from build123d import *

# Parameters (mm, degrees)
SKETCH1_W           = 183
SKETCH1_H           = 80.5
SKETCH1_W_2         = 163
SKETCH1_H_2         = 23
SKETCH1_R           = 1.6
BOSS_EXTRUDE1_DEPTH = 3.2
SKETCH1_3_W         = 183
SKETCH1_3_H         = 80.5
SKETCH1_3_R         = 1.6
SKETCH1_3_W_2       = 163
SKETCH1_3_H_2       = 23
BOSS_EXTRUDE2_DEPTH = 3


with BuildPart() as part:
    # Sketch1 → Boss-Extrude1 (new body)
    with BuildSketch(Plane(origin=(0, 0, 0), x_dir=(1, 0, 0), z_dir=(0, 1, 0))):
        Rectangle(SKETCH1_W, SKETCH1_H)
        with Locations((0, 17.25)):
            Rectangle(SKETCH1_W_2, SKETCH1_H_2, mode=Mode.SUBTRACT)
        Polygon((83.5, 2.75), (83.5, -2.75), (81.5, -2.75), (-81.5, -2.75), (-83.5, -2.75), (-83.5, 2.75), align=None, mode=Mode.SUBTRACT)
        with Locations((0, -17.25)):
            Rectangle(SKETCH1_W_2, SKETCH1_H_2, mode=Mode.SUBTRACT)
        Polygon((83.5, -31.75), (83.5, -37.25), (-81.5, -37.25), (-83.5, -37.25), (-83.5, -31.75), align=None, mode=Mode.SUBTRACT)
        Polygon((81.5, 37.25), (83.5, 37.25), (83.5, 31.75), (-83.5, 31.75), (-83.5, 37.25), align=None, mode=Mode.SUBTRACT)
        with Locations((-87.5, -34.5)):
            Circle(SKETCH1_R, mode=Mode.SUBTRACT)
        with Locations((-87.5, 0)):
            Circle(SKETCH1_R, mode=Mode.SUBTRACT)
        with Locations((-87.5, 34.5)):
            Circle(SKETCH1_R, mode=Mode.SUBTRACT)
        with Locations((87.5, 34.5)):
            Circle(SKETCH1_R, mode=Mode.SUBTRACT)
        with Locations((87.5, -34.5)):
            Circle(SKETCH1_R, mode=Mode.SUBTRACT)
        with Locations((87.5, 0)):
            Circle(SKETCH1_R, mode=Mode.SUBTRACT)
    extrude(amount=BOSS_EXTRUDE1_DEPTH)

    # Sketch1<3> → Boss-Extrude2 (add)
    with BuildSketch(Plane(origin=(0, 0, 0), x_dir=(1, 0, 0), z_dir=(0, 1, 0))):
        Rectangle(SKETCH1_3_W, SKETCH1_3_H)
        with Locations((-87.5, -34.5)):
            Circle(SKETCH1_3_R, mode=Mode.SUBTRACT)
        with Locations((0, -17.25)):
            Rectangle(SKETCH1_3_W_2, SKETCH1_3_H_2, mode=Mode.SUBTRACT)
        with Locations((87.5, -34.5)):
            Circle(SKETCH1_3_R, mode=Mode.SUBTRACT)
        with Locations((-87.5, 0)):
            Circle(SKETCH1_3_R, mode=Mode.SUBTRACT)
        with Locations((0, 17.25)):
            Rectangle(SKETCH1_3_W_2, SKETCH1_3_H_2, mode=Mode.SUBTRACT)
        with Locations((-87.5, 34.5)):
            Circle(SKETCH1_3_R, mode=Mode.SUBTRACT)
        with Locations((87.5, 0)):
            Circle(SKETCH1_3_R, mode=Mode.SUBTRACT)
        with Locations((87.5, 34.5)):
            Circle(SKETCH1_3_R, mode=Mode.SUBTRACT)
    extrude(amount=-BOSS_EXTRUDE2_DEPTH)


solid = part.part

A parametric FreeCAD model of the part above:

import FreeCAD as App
import Part
import Sketcher
Q = App.Units.Quantity


def add_polygon(sketch, points):
    """Adds a closed chain of lines whose ends are joined by coincident constraints."""
    first, n = sketch.GeometryCount, len(points)
    for a, b in zip(points, points[1:] + points[:1]):
        sketch.addGeometry(Part.LineSegment(App.Vector(*a, 0), App.Vector(*b, 0)), False)
    for i in range(n):
        sketch.addConstraint(Sketcher.Constraint("Coincident", first + i, 2, first + (i + 1) % n, 1))

doc = App.newDocument("Part")
params = doc.addObject("Spreadsheet::Sheet", "Params")
for row, (alias, value) in enumerate([
    ("sketch1_diameter", "3.2 mm"),
    ("sketch1_width", "183 mm"),
    ("sketch1_width2", "167 mm"),
    ("sketch1_width3", "163 mm"),
    ("sketch1_height", "23 mm"),
    ("pad1_length", "3.2 mm"),
    ("sketch2_diameter", "3.2 mm"),
    ("sketch2_width", "183 mm"),
    ("sketch2_width2", "163 mm"),
    ("sketch2_height", "23 mm"),
    ("sketch2_height2", "80.5 mm"),
    ("pad2_length", "3 mm"),
], start=1):
    params.set(f"A{row}", alias)
    params.set(f"B{row}", "=" + value)
    params.setAlias(f"B{row}", alias)

body = doc.addObject("PartDesign::Body", "Body")

sketch1 = body.newObject("Sketcher::SketchObject", "Sketch")
sketch1.AttachmentSupport = (doc.getObject("XZ_Plane"), [""])
sketch1.MapMode = "FlatFace"
add_polygon(sketch1, [(-91.5, -40.2), (-91.5, 40.2), (91.5, 40.2), (91.5, -40.2)])
sketch1.addGeometry(Part.Circle(App.Vector(-87.5, 34.5, 0), App.Vector(0, 0, 1), 1.6), False)
add_polygon(sketch1, [(-83.5, 31.8), (83.5, 31.8), (83.5, 37.2), (-83.5, 37.2)])
sketch1.addGeometry(Part.Circle(App.Vector(87.5, 34.5, 0), App.Vector(0, 0, 1), 1.6), False)
add_polygon(sketch1, [(81.5, 28.8), (-81.5, 28.8), (-81.5, 5.8), (81.5, 5.8)])
sketch1.addGeometry(Part.Circle(App.Vector(-87.5, 0, 0), App.Vector(0, 0, 1), 1.6), False)
sketch1.addGeometry(Part.Circle(App.Vector(-87.5, -34.5, 0), App.Vector(0, 0, 1), 1.6), False)
add_polygon(sketch1, [(-83.5, -2.8), (83.5, -2.8), (83.5, 2.8), (-83.5, 2.8)])
add_polygon(sketch1, [(81.5, -5.8), (-81.5, -5.8), (-81.5, -28.8), (81.5, -28.8)])
sketch1.addGeometry(Part.Circle(App.Vector(87.5, 0, 0), App.Vector(0, 0, 1), 1.6), False)
add_polygon(sketch1, [(-83.5, -37.2), (83.5, -37.2), (83.5, -31.8), (-83.5, -31.8)])
sketch1.addGeometry(Part.Circle(App.Vector(87.5, -34.5, 0), App.Vector(0, 0, 1), 1.6), False)
sketch1.addConstraint(Sketcher.Constraint("Vertical", 0))
sketch1.addConstraint(Sketcher.Constraint("Horizontal", 1))
sketch1.addConstraint(Sketcher.Constraint("Vertical", 2))
sketch1.addConstraint(Sketcher.Constraint("Horizontal", 3))
sketch1.addConstraint(Sketcher.Constraint("Horizontal", 5))
sketch1.addConstraint(Sketcher.Constraint("Vertical", 6))
sketch1.addConstraint(Sketcher.Constraint("Horizontal", 7))
sketch1.addConstraint(Sketcher.Constraint("Vertical", 8))
sketch1.addConstraint(Sketcher.Constraint("Horizontal", 10))
sketch1.addConstraint(Sketcher.Constraint("Vertical", 11))
sketch1.addConstraint(Sketcher.Constraint("Horizontal", 12))
sketch1.addConstraint(Sketcher.Constraint("Vertical", 13))
sketch1.addConstraint(Sketcher.Constraint("Horizontal", 16))
sketch1.addConstraint(Sketcher.Constraint("Vertical", 17))
sketch1.addConstraint(Sketcher.Constraint("Horizontal", 18))
sketch1.addConstraint(Sketcher.Constraint("Vertical", 19))
sketch1.addConstraint(Sketcher.Constraint("Horizontal", 20))
sketch1.addConstraint(Sketcher.Constraint("Vertical", 21))
sketch1.addConstraint(Sketcher.Constraint("Horizontal", 22))
sketch1.addConstraint(Sketcher.Constraint("Vertical", 23))
sketch1.addConstraint(Sketcher.Constraint("Horizontal", 25))
sketch1.addConstraint(Sketcher.Constraint("Vertical", 26))
sketch1.addConstraint(Sketcher.Constraint("Horizontal", 27))
sketch1.addConstraint(Sketcher.Constraint("Vertical", 28))
sketch1.addConstraint(Sketcher.Constraint("Equal", 4, 9))
sketch1.addConstraint(Sketcher.Constraint("Equal", 9, 14))
sketch1.addConstraint(Sketcher.Constraint("Equal", 14, 15))
sketch1.addConstraint(Sketcher.Constraint("Equal", 15, 24))
sketch1.addConstraint(Sketcher.Constraint("Equal", 24, 29))
sketch1.addConstraint(Sketcher.Constraint("Symmetric", 9, 3, 15, 3, -1, 1))
sketch1.addConstraint(Sketcher.Constraint("Symmetric", 14, 3, 24, 3, -1, 1))
sketch1.addConstraint(Sketcher.Constraint("Symmetric", 4, 3, 29, 3, -1, 1))
sketch1.addConstraint(Sketcher.Constraint("Symmetric", 0, 2, 2, 2, -1, 1))
sketch1.addConstraint(Sketcher.Constraint("Symmetric", 16, 2, 18, 2, -1, 1))
sketch1.addConstraint(Sketcher.Constraint("Symmetric", 12, 2, 20, 2, -1, 1))
sketch1.addConstraint(Sketcher.Constraint("Symmetric", 10, 2, 22, 2, -1, 1))
sketch1.addConstraint(Sketcher.Constraint("Symmetric", 7, 2, 25, 2, -1, 1))
sketch1.addConstraint(Sketcher.Constraint("Symmetric", 5, 2, 27, 2, -1, 1))
sketch1.addConstraint(Sketcher.Constraint("Symmetric", 4, 3, 9, 3, -2))
sketch1.addConstraint(Sketcher.Constraint("PointOnObject", 14, 3, -1))
sketch1.addConstraint(Sketcher.Constraint("Vertical", 4, 3, 14, 3))
sketch1.addConstraint(Sketcher.Constraint("Vertical", 6, 2, 16, 2))
sketch1.addConstraint(Sketcher.Constraint("Vertical", 8, 2, 18, 2))
sketch1.addConstraint(Sketcher.Constraint("Vertical", 11, 2, 20, 2))
sketch1.addConstraint(Sketcher.Constraint("Equal", 8, 17))
sketch1.addConstraint(Sketcher.Constraint("Diameter", 4, Q("3.2 mm")))
sketch1.addConstraint(Sketcher.Constraint("DistanceX", 1, 1, 1, 2, Q("183 mm")))
sketch1.addConstraint(Sketcher.Constraint("DistanceX", 5, 1, 5, 2, Q("167 mm")))
sketch1.addConstraint(Sketcher.Constraint("DistanceX", 10, 2, 10, 1, Q("163 mm")))
sketch1.addConstraint(Sketcher.Constraint("DistanceY", 11, 2, 11, 1, Q("23 mm")))
sketch1.addConstraint(Sketcher.Constraint("DistanceY", 0, 1, 0, 2, Q("80.5 mm")))
sketch1.addConstraint(Sketcher.Constraint("DistanceY", 6, 1, 6, 2, Q("5.5 mm")))
sketch1.addConstraint(Sketcher.Constraint("DistanceX", 4, 3, 9, 3, Q("175 mm")))
sketch1.addConstraint(Sketcher.Constraint("DistanceY", 15, 3, 4, 3, Q("69 mm")))
sketch1.addConstraint(Sketcher.Constraint("DistanceY", 2, 2, 5, 2, Q("72 mm")))
sketch1.addConstraint(Sketcher.Constraint("DistanceY", 10, 2, 8, 2, Q("3 mm")))
sketch1.setExpression("Constraints[69]", "Params.sketch1_diameter")
sketch1.setExpression("Constraints[70]", "Params.sketch1_width")
sketch1.setExpression("Constraints[71]", "Params.sketch1_width2")
sketch1.setExpression("Constraints[72]", "Params.sketch1_width3")
sketch1.setExpression("Constraints[73]", "Params.sketch1_height")
pad1 = body.newObject("PartDesign::Pad", "Pad")
pad1.Profile = sketch1
pad1.setExpression("Length", "Params.pad1_length")
pad1.Reversed = True

sketch2 = body.newObject("Sketcher::SketchObject", "Sketch001")
sketch2.AttachmentSupport = (doc.getObject("XZ_Plane"), [""])
sketch2.MapMode = "FlatFace"
add_polygon(sketch2, [(-91.5, -40.2), (-91.5, 40.2), (91.5, 40.2), (91.5, -40.2)])
sketch2.addGeometry(Part.Circle(App.Vector(-87.5, 34.5, 0), App.Vector(0, 0, 1), 1.6), False)
sketch2.addGeometry(Part.Circle(App.Vector(-87.5, 0, 0), App.Vector(0, 0, 1), 1.6), False)
sketch2.addGeometry(Part.Circle(App.Vector(87.5, 34.5, 0), App.Vector(0, 0, 1), 1.6), False)
add_polygon(sketch2, [(81.5, 28.8), (-81.5, 28.8), (-81.5, 5.8), (81.5, 5.8)])
sketch2.addGeometry(Part.Circle(App.Vector(87.5, 0, 0), App.Vector(0, 0, 1), 1.6), False)
sketch2.addGeometry(Part.Circle(App.Vector(-87.5, -34.5, 0), App.Vector(0, 0, 1), 1.6), False)
add_polygon(sketch2, [(81.5, -5.8), (-81.5, -5.8), (-81.5, -28.8), (81.5, -28.8)])
sketch2.addGeometry(Part.Circle(App.Vector(87.5, -34.5, 0), App.Vector(0, 0, 1), 1.6), False)
sketch2.addConstraint(Sketcher.Constraint("Vertical", 0))
sketch2.addConstraint(Sketcher.Constraint("Horizontal", 1))
sketch2.addConstraint(Sketcher.Constraint("Vertical", 2))
sketch2.addConstraint(Sketcher.Constraint("Horizontal", 3))
sketch2.addConstraint(Sketcher.Constraint("Horizontal", 7))
sketch2.addConstraint(Sketcher.Constraint("Vertical", 8))
sketch2.addConstraint(Sketcher.Constraint("Horizontal", 9))
sketch2.addConstraint(Sketcher.Constraint("Vertical", 10))
sketch2.addConstraint(Sketcher.Constraint("Horizontal", 13))
sketch2.addConstraint(Sketcher.Constraint("Vertical", 14))
sketch2.addConstraint(Sketcher.Constraint("Horizontal", 15))
sketch2.addConstraint(Sketcher.Constraint("Vertical", 16))
sketch2.addConstraint(Sketcher.Constraint("Equal", 4, 5))
sketch2.addConstraint(Sketcher.Constraint("Equal", 5, 6))
sketch2.addConstraint(Sketcher.Constraint("Equal", 6, 11))
sketch2.addConstraint(Sketcher.Constraint("Equal", 11, 12))
sketch2.addConstraint(Sketcher.Constraint("Equal", 12, 17))
sketch2.addConstraint(Sketcher.Constraint("Symmetric", 5, 3, 11, 3, -1, 1))
sketch2.addConstraint(Sketcher.Constraint("Symmetric", 6, 3, 12, 3, -1, 1))
sketch2.addConstraint(Sketcher.Constraint("Symmetric", 4, 3, 17, 3, -1, 1))
sketch2.addConstraint(Sketcher.Constraint("Symmetric", 0, 2, 2, 2, -1, 1))
sketch2.addConstraint(Sketcher.Constraint("Symmetric", 9, 2, 13, 2, -1, 1))
sketch2.addConstraint(Sketcher.Constraint("Symmetric", 7, 2, 15, 2, -1, 1))
sketch2.addConstraint(Sketcher.Constraint("Symmetric", 4, 3, 6, 3, -2))
sketch2.addConstraint(Sketcher.Constraint("PointOnObject", 5, 3, -1))
sketch2.addConstraint(Sketcher.Constraint("Vertical", 4, 3, 5, 3))
sketch2.addConstraint(Sketcher.Constraint("Vertical", 8, 2, 13, 2))
sketch2.addConstraint(Sketcher.Constraint("Diameter", 4, Q("3.2 mm")))
sketch2.addConstraint(Sketcher.Constraint("DistanceX", 1, 1, 1, 2, Q("183 mm")))
sketch2.addConstraint(Sketcher.Constraint("DistanceX", 7, 2, 7, 1, Q("163 mm")))
sketch2.addConstraint(Sketcher.Constraint("DistanceY", 8, 2, 8, 1, Q("23 mm")))
sketch2.addConstraint(Sketcher.Constraint("DistanceY", 0, 1, 0, 2, Q("80.5 mm")))
sketch2.addConstraint(Sketcher.Constraint("DistanceX", 4, 3, 6, 3, Q("175 mm")))
sketch2.addConstraint(Sketcher.Constraint("DistanceY", 12, 3, 4, 3, Q("69 mm")))
sketch2.addConstraint(Sketcher.Constraint("DistanceY", 3, 2, 7, 2, Q("69 mm")))
sketch2.setExpression("Constraints[39]", "Params.sketch2_diameter")
sketch2.setExpression("Constraints[40]", "Params.sketch2_width")
sketch2.setExpression("Constraints[41]", "Params.sketch2_width2")
sketch2.setExpression("Constraints[42]", "Params.sketch2_height")
sketch2.setExpression("Constraints[43]", "Params.sketch2_height2")
pad2 = body.newObject("PartDesign::Pad", "Pad001")
pad2.Profile = sketch2
pad2.setExpression("Length", "Params.pad2_length")

doc.recompute()
